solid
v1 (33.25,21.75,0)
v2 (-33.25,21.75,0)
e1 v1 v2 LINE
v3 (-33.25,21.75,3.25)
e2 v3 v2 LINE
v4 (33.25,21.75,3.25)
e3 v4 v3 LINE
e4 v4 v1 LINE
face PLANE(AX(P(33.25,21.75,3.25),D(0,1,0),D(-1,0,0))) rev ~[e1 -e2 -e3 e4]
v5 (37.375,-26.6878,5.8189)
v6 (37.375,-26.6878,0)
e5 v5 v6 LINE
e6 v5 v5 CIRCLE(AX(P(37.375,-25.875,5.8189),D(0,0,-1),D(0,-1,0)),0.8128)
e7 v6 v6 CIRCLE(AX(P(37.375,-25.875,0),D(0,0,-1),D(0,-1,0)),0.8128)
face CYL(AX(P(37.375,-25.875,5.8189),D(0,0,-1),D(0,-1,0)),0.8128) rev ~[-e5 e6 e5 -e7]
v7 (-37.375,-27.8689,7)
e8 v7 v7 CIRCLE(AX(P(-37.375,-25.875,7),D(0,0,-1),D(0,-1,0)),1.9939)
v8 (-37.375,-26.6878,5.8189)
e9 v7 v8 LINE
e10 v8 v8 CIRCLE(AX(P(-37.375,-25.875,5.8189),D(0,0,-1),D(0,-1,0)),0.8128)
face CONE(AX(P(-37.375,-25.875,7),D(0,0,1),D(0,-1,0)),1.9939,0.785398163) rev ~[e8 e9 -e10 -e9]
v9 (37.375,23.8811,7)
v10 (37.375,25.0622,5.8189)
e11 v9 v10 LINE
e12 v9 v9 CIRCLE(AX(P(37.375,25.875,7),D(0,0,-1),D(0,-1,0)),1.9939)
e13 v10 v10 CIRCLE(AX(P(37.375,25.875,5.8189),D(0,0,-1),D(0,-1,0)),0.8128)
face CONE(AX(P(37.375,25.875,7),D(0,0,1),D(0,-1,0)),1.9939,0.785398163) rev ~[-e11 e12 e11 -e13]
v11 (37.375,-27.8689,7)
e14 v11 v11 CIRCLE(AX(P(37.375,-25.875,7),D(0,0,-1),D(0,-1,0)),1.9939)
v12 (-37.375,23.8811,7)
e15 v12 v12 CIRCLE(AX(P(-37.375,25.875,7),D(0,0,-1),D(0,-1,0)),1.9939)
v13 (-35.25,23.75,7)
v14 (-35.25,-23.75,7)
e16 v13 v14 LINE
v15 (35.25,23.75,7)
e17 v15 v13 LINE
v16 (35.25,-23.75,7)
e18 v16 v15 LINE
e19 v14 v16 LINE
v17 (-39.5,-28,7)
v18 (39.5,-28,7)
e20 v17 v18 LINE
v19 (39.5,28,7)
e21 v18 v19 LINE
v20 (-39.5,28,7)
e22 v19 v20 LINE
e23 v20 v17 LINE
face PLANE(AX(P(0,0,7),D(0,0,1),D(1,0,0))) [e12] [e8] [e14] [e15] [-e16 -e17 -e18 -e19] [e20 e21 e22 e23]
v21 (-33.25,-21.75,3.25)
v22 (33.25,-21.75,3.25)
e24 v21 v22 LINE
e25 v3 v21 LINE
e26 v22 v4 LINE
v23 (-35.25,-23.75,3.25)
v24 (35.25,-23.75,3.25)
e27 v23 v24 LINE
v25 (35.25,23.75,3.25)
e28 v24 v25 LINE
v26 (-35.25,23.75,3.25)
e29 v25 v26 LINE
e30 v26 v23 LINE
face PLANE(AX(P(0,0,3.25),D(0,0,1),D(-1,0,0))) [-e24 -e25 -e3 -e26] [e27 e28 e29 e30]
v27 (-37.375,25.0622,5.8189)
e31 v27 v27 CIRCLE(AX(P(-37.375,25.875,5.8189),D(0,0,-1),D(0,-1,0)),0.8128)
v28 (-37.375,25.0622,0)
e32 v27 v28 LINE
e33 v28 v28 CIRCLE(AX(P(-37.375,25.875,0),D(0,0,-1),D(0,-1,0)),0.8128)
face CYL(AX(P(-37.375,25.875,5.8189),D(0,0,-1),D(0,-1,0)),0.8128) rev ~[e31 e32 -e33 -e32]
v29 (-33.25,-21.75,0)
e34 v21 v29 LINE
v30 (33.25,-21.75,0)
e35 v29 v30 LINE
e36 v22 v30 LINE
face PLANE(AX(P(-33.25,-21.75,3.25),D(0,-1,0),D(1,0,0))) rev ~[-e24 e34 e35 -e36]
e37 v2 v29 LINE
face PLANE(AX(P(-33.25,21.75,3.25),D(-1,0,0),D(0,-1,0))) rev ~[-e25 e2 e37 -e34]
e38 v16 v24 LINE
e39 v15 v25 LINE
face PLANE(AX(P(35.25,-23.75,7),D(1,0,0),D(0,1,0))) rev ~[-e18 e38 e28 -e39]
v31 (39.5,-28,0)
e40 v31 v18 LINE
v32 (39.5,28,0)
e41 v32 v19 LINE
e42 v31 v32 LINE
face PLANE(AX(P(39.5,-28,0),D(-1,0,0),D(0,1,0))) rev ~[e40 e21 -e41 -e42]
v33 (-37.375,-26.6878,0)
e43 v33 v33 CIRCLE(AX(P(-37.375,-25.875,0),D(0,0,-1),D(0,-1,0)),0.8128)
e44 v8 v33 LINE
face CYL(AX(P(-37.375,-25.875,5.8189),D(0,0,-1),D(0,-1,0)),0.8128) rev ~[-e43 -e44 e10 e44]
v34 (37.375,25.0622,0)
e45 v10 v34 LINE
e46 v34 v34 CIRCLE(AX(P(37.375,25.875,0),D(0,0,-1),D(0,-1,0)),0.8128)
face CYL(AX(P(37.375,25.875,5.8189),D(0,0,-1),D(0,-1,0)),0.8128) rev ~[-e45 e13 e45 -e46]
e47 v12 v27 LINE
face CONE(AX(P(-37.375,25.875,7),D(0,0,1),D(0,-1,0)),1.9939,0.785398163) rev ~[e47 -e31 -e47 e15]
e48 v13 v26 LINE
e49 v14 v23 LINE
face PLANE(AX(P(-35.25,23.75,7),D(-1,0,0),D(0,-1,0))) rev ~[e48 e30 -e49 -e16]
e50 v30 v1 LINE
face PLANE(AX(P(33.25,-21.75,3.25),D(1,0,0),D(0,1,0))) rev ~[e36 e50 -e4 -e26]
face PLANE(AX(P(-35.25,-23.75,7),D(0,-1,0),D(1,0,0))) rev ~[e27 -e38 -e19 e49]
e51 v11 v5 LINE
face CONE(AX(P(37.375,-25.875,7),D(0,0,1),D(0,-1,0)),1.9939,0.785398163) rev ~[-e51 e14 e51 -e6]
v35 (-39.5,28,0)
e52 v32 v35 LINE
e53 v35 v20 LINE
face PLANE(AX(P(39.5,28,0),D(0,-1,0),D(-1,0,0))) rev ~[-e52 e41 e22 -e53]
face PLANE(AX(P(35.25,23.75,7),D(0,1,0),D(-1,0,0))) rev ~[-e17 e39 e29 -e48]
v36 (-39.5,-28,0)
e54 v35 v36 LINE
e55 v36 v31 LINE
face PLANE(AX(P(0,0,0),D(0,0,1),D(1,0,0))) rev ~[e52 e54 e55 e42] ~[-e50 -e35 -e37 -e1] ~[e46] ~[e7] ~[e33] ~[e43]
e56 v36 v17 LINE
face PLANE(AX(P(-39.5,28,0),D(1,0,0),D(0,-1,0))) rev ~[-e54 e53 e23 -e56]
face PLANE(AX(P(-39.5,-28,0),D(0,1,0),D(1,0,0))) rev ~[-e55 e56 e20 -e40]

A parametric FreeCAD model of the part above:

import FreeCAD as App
import Part
import Sketcher
from FreeCAD import Vector

doc = App.newDocument("Part")
body = doc.addObject("PartDesign::Body", "Body")

sketch1 = doc.addObject("Sketcher::SketchObject", "Sketch")
body.addObject(sketch1)
sketch1.AttachmentSupport = (doc.XY_Plane, [""])
sketch1.MapMode = "FlatFace"
sketch1.addGeometry(Part.LineSegment(Vector(40, -28, 0), Vector(40, 28, 0)), False)
sketch1.addGeometry(Part.LineSegment(Vector(40, 28, 0), Vector(-40, 28, 0)), False)
sketch1.addGeometry(Part.LineSegment(Vector(-40, 28, 0), Vector(-40, -28, 0)), False)
sketch1.addGeometry(Part.LineSegment(Vector(-40, -28, 0), Vector(40, -28, 0)), False)
sketch1.addConstraint(Sketcher.Constraint("Coincident", 0, 2, 1, 1))
sketch1.addConstraint(Sketcher.Constraint("Coincident", 1, 2, 2, 1))
sketch1.addConstraint(Sketcher.Constraint("Coincident", 2, 2, 3, 1))
sketch1.addConstraint(Sketcher.Constraint("Coincident", 3, 2, 0, 1))
sketch1.addConstraint(Sketcher.Constraint("Vertical", 0))
sketch1.addConstraint(Sketcher.Constraint("Horizontal", 1))
sketch1.addConstraint(Sketcher.Constraint("Vertical", 2))
sketch1.addConstraint(Sketcher.Constraint("Horizontal", 3))
sketch1.addConstraint(Sketcher.Constraint("Symmetric", 0, 2, 2, 2, -1, 1))
sketch1.addConstraint(Sketcher.Constraint("DistanceX", 1, 2, 1, 1, 79.0))
sketch1.addConstraint(Sketcher.Constraint("DistanceY", 0, 1, 0, 2, 56.0))
pad1 = doc.addObject("PartDesign::Pad", "Pad")
body.addObject(pad1)
pad1.Profile = sketch1
pad1.Length = 7

sketch2 = doc.addObject("Sketcher::SketchObject", "Sketch001")
body.addObject(sketch2)
sketch2.AttachmentSupport = (doc.XY_Plane, [""])
sketch2.MapMode = "FlatFace"
sketch2.AttachmentOffset = App.Placement(Vector(0, 0, 7), App.Rotation())
sketch2.addGeometry(Part.LineSegment(Vector(35, -24, 0), Vector(35, 24, 0)), False)
sketch2.addGeometry(Part.LineSegment(Vector(35, 24, 0), Vector(-35, 24, 0)), False)
sketch2.addGeometry(Part.LineSegment(Vector(-35, 24, 0), Vector(-35, -24, 0)), False)
sketch2.addGeometry(Part.LineSegment(Vector(-35, -24, 0), Vector(35, -24, 0)), False)
sketch2.addConstraint(Sketcher.Constraint("Coincident", 0, 2, 1, 1))
sketch2.addConstraint(Sketcher.Constraint("Coincident", 1, 2, 2, 1))
sketch2.addConstraint(Sketcher.Constraint("Coincident", 2, 2, 3, 1))
sketch2.addConstraint(Sketcher.Constraint("Coincident", 3, 2, 0, 1))
sketch2.addConstraint(Sketcher.Constraint("Vertical", 0))
sketch2.addConstraint(Sketcher.Constraint("Horizontal", 1))
sketch2.addConstraint(Sketcher.Constraint("Vertical", 2))
sketch2.addConstraint(Sketcher.Constraint("Horizontal", 3))
sketch2.addConstraint(Sketcher.Constraint("Symmetric", 0, 2, 2, 2, -1, 1))
sketch2.addConstraint(Sketcher.Constraint("DistanceX", 1, 2, 1, 1, 70.5))
sketch2.addConstraint(Sketcher.Constraint("DistanceY", 0, 1, 0, 2, 47.5))
pocket1 = doc.addObject("PartDesign::Pocket", "Pocket")
body.addObject(pocket1)
pocket1.Profile = sketch2
pocket1.Length = 3.75

sketch3 = doc.addObject("Sketcher::SketchObject", "Sketch002")
body.addObject(sketch3)
sketch3.AttachmentSupport = (doc.XY_Plane, [""])
sketch3.MapMode = "FlatFace"
sketch3.AttachmentOffset = App.Placement(Vector(0, 0, 3.25), App.Rotation())
sketch3.addGeometry(Part.LineSegment(Vector(-33, 22, 0), Vector(-33, -22, 0)), False)
sketch3.addGeometry(Part.LineSegment(Vector(-33, -22, 0), Vector(33, -22, 0)), False)
sketch3.addGeometry(Part.LineSegment(Vector(33, -22, 0), Vector(33, 22, 0)), False)
sketch3.addGeometry(Part.LineSegment(Vector(33, 22, 0), Vector(-33, 22, 0)), False)
sketch3.addConstraint(Sketcher.Constraint("Coincident", 0, 2, 1, 1))
sketch3.addConstraint(Sketcher.Constraint("Coincident", 1, 2, 2, 1))
sketch3.addConstraint(Sketcher.Constraint("Coincident", 2, 2, 3, 1))
sketch3.addConstraint(Sketcher.Constraint("Coincident", 3, 2, 0, 1))
sketch3.addConstraint(Sketcher.Constraint("Vertical", 0))
sketch3.addConstraint(Sketcher.Constraint("Horizontal", 1))
sketch3.addConstraint(Sketcher.Constraint("Vertical", 2))
sketch3.addConstraint(Sketcher.Constraint("Horizontal", 3))
sketch3.addConstraint(Sketcher.Constraint("Symmetric", 0, 2, 2, 2, -1, 1))
sketch3.addConstraint(Sketcher.Constraint("DistanceX", 1, 1, 1, 2, 66.5))
sketch3.addConstraint(Sketcher.Constraint("DistanceY", 0, 2, 0, 1, 43.5))
pocket2 = doc.addObject("PartDesign::Pocket", "Pocket001")
body.addObject(pocket2)
pocket2.Profile = sketch3
pocket2.Length = 3.25

sketch4 = doc.addObject("Sketcher::SketchObject", "Sketch003")
body.addObject(sketch4)
sketch4.AttachmentSupport = (doc.XY_Plane, [""])
sketch4.MapMode = "FlatFace"
sketch4.AttachmentOffset = App.Placement(Vector(0, 0, 7), App.Rotation())
sketch4.addGeometry(Part.Circle(Vector(37.4, 25.9, 0), Vector(0, 0, 1), 0.8), False)
sketch4.addGeometry(Part.Circle(Vector(37.4, -25.9, 0), Vector(0, 0, 1), 0.8), False)
sketch4.addGeometry(Part.Circle(Vector(-37.4, -25.9, 0), Vector(0, 0, 1), 0.8), False)
sketch4.addConstraint(Sketcher.Constraint("Equal", 0, 1))
sketch4.addConstraint(Sketcher.Constraint("Equal", 1, 2))
sketch4.addConstraint(Sketcher.Constraint("Symmetric", 0, 3, 2, 3, -1, 1))
sketch4.addConstraint(Sketcher.Constraint("Symmetric", 1, 3, 2, 3, -2))
sketch4.addConstraint(Sketcher.Constraint("Diameter", 0, 1.6256))
sketch4.addConstraint(Sketcher.Constraint("DistanceY", 1, 3, 0, 3, 51.75))
sketch4.addConstraint(Sketcher.Constraint("DistanceX", 2, 3, 1, 3, 74.75))
doc.recompute()
hole = doc.addObject("PartDesign::Hole", "Hole")
body.addObject(hole)
hole.Profile = sketch4
hole.ThreadType = "None"
hole.Diameter = 1.6256
hole.DepthType = "Dimension"
hole.Depth = 7.0104
hole.DrillPoint = "Flat"
hole.HoleCutType = "Countersink"
hole.HoleCutDiameter = 3.9878
hole.HoleCutCountersinkAngle = 90

sketch5 = doc.addObject("Sketcher::SketchObject", "Sketch004")
body.addObject(sketch5)
sketch5.AttachmentSupport = (doc.XY_Plane, [""])
sketch5.MapMode = "FlatFace"
sketch5.AttachmentOffset = App.Placement(Vector(0, 0, 7), App.Rotation())
sketch5.addGeometry(Part.Circle(Vector(-37.4, 25.9, 0), Vector(0, 0, 1), 0.8), False)
sketch5.addConstraint(Sketcher.Constraint("Diameter", 0, 1.6256))
sketch5.addConstraint(Sketcher.Constraint("DistanceX", 0, 3, -1, 1, 37.375))
sketch5.addConstraint(Sketcher.Constraint("DistanceY", -1, 1, 0, 3, 25.875))
doc.recompute()
hole2 = doc.addObject("PartDesign::Hole", "Hole001")
body.addObject(hole2)
hole2.Profile = sketch5
hole2.ThreadType = "None"
hole2.Diameter = 1.6256
hole2.DepthType = "Dimension"
hole2.Depth = 7.0104
hole2.DrillPoint = "Flat"
hole2.HoleCutType = "Countersink"
hole2.HoleCutDiameter = 3.9878
hole2.HoleCutCountersinkAngle = 90

doc.recompute()
